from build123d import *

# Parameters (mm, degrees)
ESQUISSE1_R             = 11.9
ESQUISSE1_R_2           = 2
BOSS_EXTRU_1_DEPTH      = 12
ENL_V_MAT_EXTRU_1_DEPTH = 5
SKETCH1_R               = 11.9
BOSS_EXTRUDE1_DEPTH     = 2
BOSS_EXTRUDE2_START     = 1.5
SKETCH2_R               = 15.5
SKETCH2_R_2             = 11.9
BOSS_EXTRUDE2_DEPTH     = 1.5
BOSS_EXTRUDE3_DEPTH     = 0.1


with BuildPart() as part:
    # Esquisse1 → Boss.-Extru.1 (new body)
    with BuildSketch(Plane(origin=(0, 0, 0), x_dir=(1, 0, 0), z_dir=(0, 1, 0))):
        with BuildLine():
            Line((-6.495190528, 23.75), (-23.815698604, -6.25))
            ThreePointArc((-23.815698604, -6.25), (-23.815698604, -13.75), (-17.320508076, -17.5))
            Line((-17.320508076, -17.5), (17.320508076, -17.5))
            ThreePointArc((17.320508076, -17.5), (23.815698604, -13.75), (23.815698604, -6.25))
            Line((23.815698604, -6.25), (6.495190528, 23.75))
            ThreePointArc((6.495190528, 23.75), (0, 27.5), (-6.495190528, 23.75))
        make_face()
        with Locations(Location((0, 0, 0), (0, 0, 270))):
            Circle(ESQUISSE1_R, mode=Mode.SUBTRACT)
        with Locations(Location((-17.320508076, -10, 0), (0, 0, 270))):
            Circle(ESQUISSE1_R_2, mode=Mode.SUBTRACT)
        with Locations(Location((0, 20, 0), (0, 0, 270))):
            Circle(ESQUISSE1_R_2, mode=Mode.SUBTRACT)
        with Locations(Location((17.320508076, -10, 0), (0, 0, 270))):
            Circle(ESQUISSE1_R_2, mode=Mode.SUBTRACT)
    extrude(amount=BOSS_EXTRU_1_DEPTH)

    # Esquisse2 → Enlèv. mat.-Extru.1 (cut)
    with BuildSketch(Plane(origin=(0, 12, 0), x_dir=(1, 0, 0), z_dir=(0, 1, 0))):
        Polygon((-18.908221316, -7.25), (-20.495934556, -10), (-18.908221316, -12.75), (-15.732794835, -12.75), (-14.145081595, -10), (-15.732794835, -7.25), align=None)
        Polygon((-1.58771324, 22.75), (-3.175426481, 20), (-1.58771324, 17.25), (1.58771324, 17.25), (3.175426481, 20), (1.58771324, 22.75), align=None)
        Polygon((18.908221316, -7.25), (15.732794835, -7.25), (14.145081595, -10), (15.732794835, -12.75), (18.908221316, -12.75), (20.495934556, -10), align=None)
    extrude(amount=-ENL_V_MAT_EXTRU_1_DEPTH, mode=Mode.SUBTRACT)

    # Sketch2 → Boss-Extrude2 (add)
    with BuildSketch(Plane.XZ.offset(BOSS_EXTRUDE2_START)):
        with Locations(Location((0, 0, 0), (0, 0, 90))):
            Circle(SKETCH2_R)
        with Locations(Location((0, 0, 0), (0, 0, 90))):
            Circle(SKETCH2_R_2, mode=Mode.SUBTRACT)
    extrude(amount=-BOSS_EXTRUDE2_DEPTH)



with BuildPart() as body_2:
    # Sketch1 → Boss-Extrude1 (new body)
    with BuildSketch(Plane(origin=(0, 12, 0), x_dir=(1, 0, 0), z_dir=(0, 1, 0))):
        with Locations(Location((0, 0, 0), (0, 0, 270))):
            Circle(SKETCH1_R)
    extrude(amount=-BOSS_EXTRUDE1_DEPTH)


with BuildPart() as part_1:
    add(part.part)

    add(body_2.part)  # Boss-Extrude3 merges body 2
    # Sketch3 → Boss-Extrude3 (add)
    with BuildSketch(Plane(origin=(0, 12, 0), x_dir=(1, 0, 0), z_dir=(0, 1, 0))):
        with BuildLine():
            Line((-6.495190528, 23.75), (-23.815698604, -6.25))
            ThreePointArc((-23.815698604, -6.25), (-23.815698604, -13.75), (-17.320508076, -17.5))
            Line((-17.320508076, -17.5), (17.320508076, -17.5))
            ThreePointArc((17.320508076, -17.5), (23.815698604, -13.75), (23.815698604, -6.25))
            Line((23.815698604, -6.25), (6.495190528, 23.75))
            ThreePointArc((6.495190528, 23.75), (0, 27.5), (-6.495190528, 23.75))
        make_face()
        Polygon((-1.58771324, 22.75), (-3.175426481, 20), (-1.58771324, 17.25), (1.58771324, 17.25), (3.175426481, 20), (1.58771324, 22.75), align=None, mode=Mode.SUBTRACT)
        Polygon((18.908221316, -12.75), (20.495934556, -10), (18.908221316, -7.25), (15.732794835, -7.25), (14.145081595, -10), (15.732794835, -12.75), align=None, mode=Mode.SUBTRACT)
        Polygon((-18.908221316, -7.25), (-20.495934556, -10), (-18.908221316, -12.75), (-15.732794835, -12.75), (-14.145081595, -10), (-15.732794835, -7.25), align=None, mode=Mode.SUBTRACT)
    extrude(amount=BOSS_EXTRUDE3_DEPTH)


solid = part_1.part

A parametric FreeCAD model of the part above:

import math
import FreeCAD as App
import Part
import Sketcher
from FreeCAD import Vector
Q = App.Units.Quantity


def add_polygon(sketch, points):
    """Adds a closed chain of lines whose ends are joined by coincident constraints."""
    first, n = sketch.GeometryCount, len(points)
    for a, b in zip(points, points[1:] + points[:1]):
        sketch.addGeometry(Part.LineSegment(App.Vector(*a, 0), App.Vector(*b, 0)), False)
    for i in range(n):
        sketch.addConstraint(Sketcher.Constraint("Coincident", first + i, 2, first + (i + 1) % n, 1))

doc = App.newDocument("Part")
body = doc.addObject("PartDesign::Body", "Body")

sketch1 = doc.addObject("Sketcher::SketchObject", "Sketch")
body.addObject(sketch1)
sketch1.AttachmentSupport = (doc.XZ_Plane, [""])
sketch1.MapMode = "FlatFace"
sketch1.addGeometry([
    Part.LineSegment(Vector(-6.5, -23.8, 0), Vector(-23.8, 6.2, 0)),
    Part.ArcOfCircle(Part.Circle(Vector(-17.3, 10, 0), Vector(0, 0, 1), 7.5), math.radians(90), math.radians(210)),
    Part.LineSegment(Vector(-17.3, 17.5, 0), Vector(17.3, 17.5, 0)),
    Part.ArcOfCircle(Part.Circle(Vector(17.3, 10, 0), Vector(0, 0, 1), 7.5), math.radians(-30), math.radians(90)),
    Part.LineSegment(Vector(23.8, 6.2, 0), Vector(6.5, -23.8, 0)),
    Part.ArcOfCircle(Part.Circle(Vector(0, -20, 0), Vector(0, 0, 1), 7.5), math.radians(-150), math.radians(-30)),
    Part.Circle(Vector(-17.3, 10, 0), Vector(0, 0, 1), 2),
    Part.Circle(Vector(17.3, 10, 0), Vector(0, 0, 1), 2),
    Part.Circle(Vector(0, 0, 0), Vector(0, 0, 1), 11.9),
    Part.Circle(Vector(0, -20, 0), Vector(0, 0, 1), 2),
], False)
sketch1.addConstraint([
    Sketcher.Constraint("Tangent", 0, 2, 1, 2),
    Sketcher.Constraint("Tangent", 1, 1, 2, 1),
    Sketcher.Constraint("Tangent", 2, 2, 3, 2),
    Sketcher.Constraint("Tangent", 3, 1, 4, 1),
    Sketcher.Constraint("Tangent", 4, 2, 5, 2),
    Sketcher.Constraint("Tangent", 5, 1, 0, 1),
    Sketcher.Constraint("Horizontal", 2),
    Sketcher.Constraint("Coincident", 8, 3, -1, 1),
    Sketcher.Constraint("Coincident", 6, 3, 1, 3),
    Sketcher.Constraint("Coincident", 7, 3, 3, 3),
    Sketcher.Constraint("Coincident", 9, 3, 5, 3),
    Sketcher.Constraint("Equal", 1, 3),
    Sketcher.Constraint("Equal", 3, 5),
    Sketcher.Constraint("Equal", 6, 7),
    Sketcher.Constraint("Equal", 7, 9),
    Sketcher.Constraint("Symmetric", 0, 2, 3, 1, -2),
    Sketcher.Constraint("Diameter", 6, 4.0),
    Sketcher.Constraint("Diameter", 8, 23.8),
    Sketcher.Constraint("Radius", 1, 7.5),
    Sketcher.Constraint("Angle", 0, Q("120 deg")),
    Sketcher.Constraint("DistanceY", -1, 1, 1, 3, 10.0),
    Sketcher.Constraint("DistanceY", 5, 3, -1, 1, 20.0),
])
pad1 = doc.addObject("PartDesign::Pad", "Pad")
body.addObject(pad1)
pad1.Profile = sketch1
pad1.Length = 12
pad1.Reversed = True

sketch2 = doc.addObject("Sketcher::SketchObject", "Sketch001")
body.addObject(sketch2)
sketch2.AttachmentSupport = (doc.XZ_Plane, [""])
sketch2.MapMode = "FlatFace"
sketch2.AttachmentOffset = App.Placement(Vector(0, 0, -12), App.Rotation())
add_polygon(sketch2, [(-18.9, 7.2), (-20.5, 10), (-18.9, 12.8), (-15.7, 12.8), (-14.1, 10), (-15.7, 7.2)])
add_polygon(sketch2, [(-1.6, -22.8), (-3.2, -20), (-1.6, -17.2), (1.6, -17.2), (3.2, -20), (1.6, -22.8)])
add_polygon(sketch2, [(18.9, 7.2), (15.7, 7.2), (14.1, 10), (15.7, 12.8), (18.9, 12.8), (20.5, 10)])
sketch2.addConstraint([
    Sketcher.Constraint("Horizontal", 2),
    Sketcher.Constraint("Horizontal", 5),
    Sketcher.Constraint("Horizontal", 8),
    Sketcher.Constraint("Horizontal", 11),
    Sketcher.Constraint("Horizontal", 12),
    Sketcher.Constraint("Horizontal", 15),
    Sketcher.Constraint("Symmetric", 6, 2, 9, 2, -2),
    Sketcher.Constraint("Symmetric", 4, 2, 12, 2, -2),
    Sketcher.Constraint("Symmetric", 3, 2, 13, 2, -2),
    Sketcher.Constraint("Symmetric", 2, 2, 14, 2, -2),
    Sketcher.Constraint("Symmetric", 0, 2, 16, 2, -2),
    Sketcher.Constraint("Parallel", 0, 3),
    Sketcher.Constraint("Parallel", 1, 4),
    Sketcher.Constraint("Parallel", 3, 6),
    Sketcher.Constraint("Parallel", 4, 7),
    Sketcher.Constraint("Parallel", 6, 9),
    Sketcher.Constraint("Parallel", 7, 10),
    Sketcher.Constraint("Parallel", 9, 13),
    Sketcher.Constraint("Parallel", 13, 16),
    Sketcher.Constraint("Parallel", 14, 17),
    Sketcher.Constraint("Horizontal", 0, 2, 3, 2),
    Sketcher.Constraint("Vertical", 2, 2, 4, 2),
    Sketcher.Constraint("Vertical", 8, 2, 10, 2),
    Sketcher.Constraint("Equal", 5, 8),
    Sketcher.Constraint("Equal", 4, 6),
    Sketcher.Constraint("Angle", 0, Q("120 deg")),
    Sketcher.Constraint("DistanceY", -1, 1, 0, 2, 10.0),
    Sketcher.Constraint("DistanceY", 6, 2, -1, 1, 20.0),
    Sketcher.Constraint("DistanceY", 4, 2, 2, 2, 5.5),
    Sketcher.Constraint("DistanceX", 2, 1, 2, 2, 3.175426),
    Sketcher.Constraint("DistanceX", 1, 2, -1, 1, 18.908221),
])
pocket1 = doc.addObject("PartDesign::Pocket", "Pocket")
body.addObject(pocket1)
pocket1.Profile = sketch2
pocket1.Length = 5
pocket1.Reversed = True

sketch3 = doc.addObject("Sketcher::SketchObject", "Sketch002")
body.addObject(sketch3)
sketch3.AttachmentSupport = (doc.XZ_Plane, [""])
sketch3.MapMode = "FlatFace"
sketch3.AttachmentOffset = App.Placement(Vector(0, 0, 1.5), App.Rotation())
sketch3.addGeometry([
    Part.Circle(Vector(0, 0, 0), Vector(0, 0, 1), 16),
    Part.Circle(Vector(0, 0, 0), Vector(0, 0, 1), 12),
], False)
sketch3.addConstraint([
    Sketcher.Constraint("Coincident", 0, 3, -1, 1),
    Sketcher.Constraint("Coincident", 1, 3, -1, 1),
    Sketcher.Constraint("Diameter", 0, 31.0),
    Sketcher.Constraint("Diameter", 1, 23.8),
])
pad2 = doc.addObject("PartDesign::Pad", "Pad001")
body.addObject(pad2)
pad2.Profile = sketch3
pad2.Length = 1.5
pad2.Reversed = True
body2 = doc.addObject("PartDesign::Body", "Body001")

sketch4 = doc.addObject("Sketcher::SketchObject", "Sketch003")
body2.addObject(sketch4)
sketch4.AttachmentSupport = (doc.getObject("XZ_Plane001"), [""])
sketch4.MapMode = "FlatFace"
sketch4.AttachmentOffset = App.Placement(Vector(0, 0, -12), App.Rotation())
sketch4.addGeometry(Part.Circle(Vector(0, 0, 0), Vector(0, 0, 1), 12), False)
sketch4.addConstraint([
    Sketcher.Constraint("Coincident", 0, 3, -1, 1),
    Sketcher.Constraint("Diameter", 0, 23.8),
])
pad3 = doc.addObject("PartDesign::Pad", "Pad002")
body2.addObject(pad3)
pad3.Profile = sketch4
pad3.Length = 2
doc.recompute()

boolean = doc.addObject("PartDesign::Boolean", "Boolean")
body.addObject(boolean)
boolean.Type = "Fuse"
boolean.addObjects([body2])

sketch5 = doc.addObject("Sketcher::SketchObject", "Sketch004")
body.addObject(sketch5)
sketch5.AttachmentSupport = (doc.XZ_Plane, [""])
sketch5.MapMode = "FlatFace"
sketch5.AttachmentOffset = App.Placement(Vector(0, 0, -12), App.Rotation())
sketch5.addGeometry(Part.LineSegment(Vector(-6.5, -23.8, 0), Vector(-23.8, 6.2, 0)), False)
sketch5.addGeometry(Part.ArcOfCircle(Part.Circle(Vector(-17.3, 10, 0), Vector(0, 0, 1), 7.5), math.radians(90), math.radians(210)), False)
sketch5.addGeometry(Part.LineSegment(Vector(-17.3, 17.5, 0), Vector(17.3, 17.5, 0)), False)
sketch5.addGeometry(Part.ArcOfCircle(Part.Circle(Vector(17.3, 10, 0), Vector(0, 0, 1), 7.5), math.radians(-30), math.radians(90)), False)
sketch5.addGeometry(Part.LineSegment(Vector(23.8, 6.2, 0), Vector(6.5, -23.8, 0)), False)
sketch5.addGeometry(Part.ArcOfCircle(Part.Circle(Vector(0, -20, 0), Vector(0, 0, 1), 7.5), math.radians(-150), math.radians(-30)), False)
add_polygon(sketch5, [(-20.5, 10), (-18.9, 7.2), (-15.7, 7.2), (-14.1, 10), (-15.7, 12.8), (-18.9, 12.8)])
add_polygon(sketch5, [(20.5, 10), (18.9, 12.8), (15.7, 12.8), (14.1, 10), (15.7, 7.2), (18.9, 7.2)])
add_polygon(sketch5, [(-3.2, -20), (-1.6, -22.8), (1.6, -22.8), (3.2, -20), (1.6, -17.2), (-1.6, -17.2)])
sketch5.addConstraint([
    Sketcher.Constraint("Tangent", 0, 2, 1, 2),
    Sketcher.Constraint("Tangent", 1, 1, 2, 1),
    Sketcher.Constraint("Tangent", 2, 2, 3, 2),
    Sketcher.Constraint("Tangent", 3, 1, 4, 1),
    Sketcher.Constraint("Tangent", 4, 2, 5, 2),
    Sketcher.Constraint("Tangent", 5, 1, 0, 1),
    Sketcher.Constraint("Horizontal", 2),
    Sketcher.Constraint("Horizontal", 7),
    Sketcher.Constraint("Horizontal", 10),
    Sketcher.Constraint("Horizontal", 13),
    Sketcher.Constraint("Horizontal", 16),
    Sketcher.Constraint("Horizontal", 19),
    Sketcher.Constraint("Horizontal", 22),
    Sketcher.Constraint("Equal", 1, 3),
    Sketcher.Constraint("Equal", 3, 5),
    Sketcher.Constraint("Symmetric", 0, 2, 3, 1, -2),
    Sketcher.Constraint("Symmetric", 10, 2, 12, 2, -2),
    Sketcher.Constraint("Symmetric", 8, 2, 14, 2, -2),
    Sketcher.Constraint("Symmetric", 7, 2, 15, 2, -2),
    Sketcher.Constraint("Symmetric", 11, 2, 17, 2, -2),
    Sketcher.Constraint("Symmetric", 20, 2, 23, 2, -2),
    Sketcher.Constraint("Parallel", 0, 6),
    Sketcher.Constraint("Parallel", 4, 8),
    Sketcher.Constraint("Parallel", 6, 9),
    Sketcher.Constraint("Parallel", 8, 11),
    Sketcher.Constraint("Parallel", 11, 14),
    Sketcher.Constraint("Parallel", 14, 17),
    Sketcher.Constraint("Parallel", 15, 18),
    Sketcher.Constraint("Parallel", 17, 20),
    Sketcher.Constraint("Parallel", 18, 21),
    Sketcher.Constraint("Parallel", 20, 23),
    Sketcher.Constraint("Horizontal", 3, 3, 8, 2),
    Sketcher.Constraint("Horizontal", 8, 2, 11, 2),
    Sketcher.Constraint("Horizontal", 5, 3, 20, 2),
    Sketcher.Constraint("Vertical", 7, 2, 9, 2),
    Sketcher.Constraint("Vertical", 19, 2, 21, 2),
    Sketcher.Constraint("Equal", 16, 19),
    Sketcher.Constraint("Equal", 17, 18),
    Sketcher.Constraint("Radius", 1, 7.5),
    Sketcher.Constraint("Angle", 0, Q("120 deg")),
    Sketcher.Constraint("DistanceY", -1, 1, 1, 3, 10.0),
    Sketcher.Constraint("DistanceY", 5, 3, -1, 1, 20.0),
    Sketcher.Constraint("DistanceY", 0, 2, 6, 2, 1.0),
    Sketcher.Constraint("DistanceX", 7, 1, 7, 2, 3.175426),
    Sketcher.Constraint("DistanceX", 6, 2, -1, 1, 18.908221),
])
pad4 = doc.addObject("PartDesign::Pad", "Pad003")
body.addObject(pad4)
pad4.Profile = sketch5
pad4.Length = 0.1
pad4.Reversed = True

doc.recompute()
